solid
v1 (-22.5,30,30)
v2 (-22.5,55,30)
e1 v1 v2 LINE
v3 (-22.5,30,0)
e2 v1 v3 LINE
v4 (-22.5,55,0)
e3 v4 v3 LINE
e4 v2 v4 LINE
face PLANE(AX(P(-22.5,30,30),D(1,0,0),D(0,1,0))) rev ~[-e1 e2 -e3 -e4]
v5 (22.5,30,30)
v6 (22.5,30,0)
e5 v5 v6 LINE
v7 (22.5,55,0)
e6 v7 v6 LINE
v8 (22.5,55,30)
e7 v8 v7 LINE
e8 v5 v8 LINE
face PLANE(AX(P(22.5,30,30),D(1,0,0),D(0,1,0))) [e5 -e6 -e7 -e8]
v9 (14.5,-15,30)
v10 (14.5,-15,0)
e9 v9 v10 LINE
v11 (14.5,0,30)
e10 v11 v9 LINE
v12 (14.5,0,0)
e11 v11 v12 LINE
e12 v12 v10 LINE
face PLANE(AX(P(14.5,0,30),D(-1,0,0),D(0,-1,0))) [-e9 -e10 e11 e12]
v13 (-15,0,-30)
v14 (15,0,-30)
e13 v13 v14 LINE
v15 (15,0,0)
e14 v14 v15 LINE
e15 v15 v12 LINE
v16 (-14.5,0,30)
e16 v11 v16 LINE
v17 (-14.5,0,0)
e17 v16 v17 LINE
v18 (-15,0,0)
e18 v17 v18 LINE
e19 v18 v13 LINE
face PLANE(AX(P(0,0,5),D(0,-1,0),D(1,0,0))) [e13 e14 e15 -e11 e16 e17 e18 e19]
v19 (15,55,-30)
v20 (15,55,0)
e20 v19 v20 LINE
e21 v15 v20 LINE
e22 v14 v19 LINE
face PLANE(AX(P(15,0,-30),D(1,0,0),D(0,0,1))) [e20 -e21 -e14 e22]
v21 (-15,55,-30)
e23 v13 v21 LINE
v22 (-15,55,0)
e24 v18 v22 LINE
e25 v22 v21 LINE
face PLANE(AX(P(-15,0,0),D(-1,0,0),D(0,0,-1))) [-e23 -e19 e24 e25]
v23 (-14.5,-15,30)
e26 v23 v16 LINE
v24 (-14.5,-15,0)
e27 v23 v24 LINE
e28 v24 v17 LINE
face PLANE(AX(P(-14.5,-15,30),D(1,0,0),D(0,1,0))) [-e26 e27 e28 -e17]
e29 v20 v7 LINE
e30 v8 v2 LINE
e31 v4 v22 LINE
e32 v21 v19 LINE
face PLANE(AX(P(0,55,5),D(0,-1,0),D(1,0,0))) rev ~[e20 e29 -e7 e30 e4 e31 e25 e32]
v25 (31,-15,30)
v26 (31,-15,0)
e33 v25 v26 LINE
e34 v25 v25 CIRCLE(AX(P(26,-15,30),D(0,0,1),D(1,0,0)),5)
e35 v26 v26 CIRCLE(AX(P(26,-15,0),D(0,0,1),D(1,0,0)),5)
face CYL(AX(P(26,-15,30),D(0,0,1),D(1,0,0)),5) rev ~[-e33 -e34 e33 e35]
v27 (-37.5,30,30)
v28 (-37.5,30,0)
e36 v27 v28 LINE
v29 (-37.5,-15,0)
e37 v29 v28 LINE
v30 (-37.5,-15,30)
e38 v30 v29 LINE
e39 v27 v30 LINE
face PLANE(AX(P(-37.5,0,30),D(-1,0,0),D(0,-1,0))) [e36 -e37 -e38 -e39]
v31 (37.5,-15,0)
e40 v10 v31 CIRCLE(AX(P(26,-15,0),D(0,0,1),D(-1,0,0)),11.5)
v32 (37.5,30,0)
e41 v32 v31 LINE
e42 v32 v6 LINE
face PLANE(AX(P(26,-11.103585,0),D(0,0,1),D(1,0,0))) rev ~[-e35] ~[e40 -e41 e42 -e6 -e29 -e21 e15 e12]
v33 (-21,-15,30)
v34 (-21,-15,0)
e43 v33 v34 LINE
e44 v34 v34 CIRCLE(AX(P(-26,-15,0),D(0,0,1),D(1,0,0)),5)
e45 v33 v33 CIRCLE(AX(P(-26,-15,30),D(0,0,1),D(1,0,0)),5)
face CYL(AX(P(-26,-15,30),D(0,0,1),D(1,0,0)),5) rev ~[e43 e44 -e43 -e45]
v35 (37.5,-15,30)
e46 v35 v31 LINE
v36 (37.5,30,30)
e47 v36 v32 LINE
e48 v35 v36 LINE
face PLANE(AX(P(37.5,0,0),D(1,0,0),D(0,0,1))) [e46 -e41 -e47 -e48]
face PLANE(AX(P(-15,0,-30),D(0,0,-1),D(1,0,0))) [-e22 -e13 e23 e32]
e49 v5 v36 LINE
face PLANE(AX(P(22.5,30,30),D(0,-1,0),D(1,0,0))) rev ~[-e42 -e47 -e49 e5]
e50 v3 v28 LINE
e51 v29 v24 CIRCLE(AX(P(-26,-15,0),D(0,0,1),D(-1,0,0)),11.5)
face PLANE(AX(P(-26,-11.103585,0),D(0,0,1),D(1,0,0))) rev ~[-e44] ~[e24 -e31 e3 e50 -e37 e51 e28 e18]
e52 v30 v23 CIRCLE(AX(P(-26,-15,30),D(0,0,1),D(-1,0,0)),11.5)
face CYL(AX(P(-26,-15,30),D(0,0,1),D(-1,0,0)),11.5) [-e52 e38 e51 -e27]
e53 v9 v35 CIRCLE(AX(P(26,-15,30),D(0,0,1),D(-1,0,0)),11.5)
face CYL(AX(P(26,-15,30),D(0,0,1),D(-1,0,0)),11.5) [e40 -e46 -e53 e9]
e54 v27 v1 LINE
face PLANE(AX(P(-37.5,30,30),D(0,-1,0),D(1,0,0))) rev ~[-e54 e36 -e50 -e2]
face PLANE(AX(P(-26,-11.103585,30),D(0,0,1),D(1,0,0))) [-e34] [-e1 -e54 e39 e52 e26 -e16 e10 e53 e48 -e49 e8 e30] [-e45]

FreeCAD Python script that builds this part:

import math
import FreeCAD as App
import Part
import Sketcher
Q = App.Units.Quantity


def add_polygon(sketch, points):
    """Adds a closed chain of lines whose ends are joined by coincident constraints."""
    first, n = sketch.GeometryCount, len(points)
    for a, b in zip(points, points[1:] + points[:1]):
        sketch.addGeometry(Part.LineSegment(App.Vector(*a, 0), App.Vector(*b, 0)), False)
    for i in range(n):
        sketch.addConstraint(Sketcher.Constraint("Coincident", first + i, 2, first + (i + 1) % n, 1))

doc = App.newDocument("Part")
params = doc.addObject("Spreadsheet::Sheet", "Params")
for row, (alias, value) in enumerate([
    ("sketch1_width", "30 mm"),
    ("sketch1_width2", "75 mm"),
    ("pad1_length", "55 mm"),
    ("sketch2_width", "15 mm"),
    ("sketch2_height", "25 mm"),
    ("pocket1_length", "57.6 mm"),
    ("sketch3_diameter", "10 mm"),
    ("sketch3_radius", "11.5 mm"),
    ("sketch3_height", "15 mm"),
    ("pad2_length", "30 mm"),
], start=1):
    params.set(f"A{row}", alias)
    params.set(f"B{row}", "=" + value)
    params.setAlias(f"B{row}", alias)

body = doc.addObject("PartDesign::Body", "Body")

sketch1 = doc.addObject("Sketcher::SketchObject", "Sketch")
body.addObject(sketch1)
sketch1.AttachmentSupport = (doc.XZ_Plane, [""])
sketch1.MapMode = "FlatFace"
add_polygon(sketch1, [(-38, 30), (-38, 0), (-15, 0), (-15, -30), (15, -30), (15, 0), (38, 0), (38, 30)])
sketch1.addConstraint([
    Sketcher.Constraint("Vertical", 0),
    Sketcher.Constraint("Horizontal", 1),
    Sketcher.Constraint("Vertical", 2),
    Sketcher.Constraint("Horizontal", 3),
    Sketcher.Constraint("Vertical", 4),
    Sketcher.Constraint("Horizontal", 5),
    Sketcher.Constraint("Vertical", 6),
    Sketcher.Constraint("Horizontal", 7),
    Sketcher.Constraint("Symmetric", 1, 2, 4, 2, -1, 1),
    Sketcher.Constraint("Symmetric", 0, 2, 5, 2, -2),
    Sketcher.Constraint("Equal", 3, 0),
    Sketcher.Constraint("Equal", 0, 2),
    Sketcher.Constraint("DistanceX", 3, 1, 3, 2, Q("30 mm")),
    Sketcher.Constraint("DistanceX", 7, 2, 7, 1, Q("75 mm")),
])
sketch1.setExpression("Constraints[20]", "Params.sketch1_width")
sketch1.setExpression("Constraints[21]", "Params.sketch1_width2")
pad1 = doc.addObject("PartDesign::Pad", "Pad")
body.addObject(pad1)
pad1.Profile = sketch1
pad1.setExpression("Length", "Params.pad1_length")
pad1.Reversed = True

sketch2 = doc.addObject("Sketcher::SketchObject", "Sketch001")
body.addObject(sketch2)
sketch2.AttachmentSupport = (doc.XY_Plane, [""])
sketch2.MapMode = "FlatFace"
sketch2.AttachmentOffset = App.Placement(App.Vector(0, 0, 30), App.Rotation())
add_polygon(sketch2, [(-38, 55), (-38, 30), (-22, 30), (-22, 55)])
add_polygon(sketch2, [(22, 55), (22, 30), (38, 30), (38, 55)])
sketch2.addConstraint([
    Sketcher.Constraint("Vertical", 0),
    Sketcher.Constraint("Horizontal", 1),
    Sketcher.Constraint("Vertical", 2),
    Sketcher.Constraint("Horizontal", 3),
    Sketcher.Constraint("Vertical", 4),
    Sketcher.Constraint("Horizontal", 5),
    Sketcher.Constraint("Vertical", 6),
    Sketcher.Constraint("Horizontal", 7),
    Sketcher.Constraint("Symmetric", 1, 2, 4, 2, -2),
    Sketcher.Constraint("Symmetric", 3, 2, 6, 2, -2),
    Sketcher.Constraint("DistanceX", 1, 1, 1, 2, Q("15 mm")),
    Sketcher.Constraint("DistanceY", 0, 2, 0, 1, Q("25 mm")),
    Sketcher.Constraint("DistanceY", -1, 1, 0, 2, Q("30 mm")),
    Sketcher.Constraint("DistanceX", 1, 2, 4, 2, Q("45 mm")),
])
sketch2.setExpression("Constraints[18]", "Params.sketch2_width")
sketch2.setExpression("Constraints[19]", "Params.sketch2_height")
pocket1 = doc.addObject("PartDesign::Pocket", "Pocket")
body.addObject(pocket1)
pocket1.Profile = sketch2
pocket1.setExpression("Length", "Params.pocket1_length")

sketch3 = doc.addObject("Sketcher::SketchObject", "Sketch002")
body.addObject(sketch3)
sketch3.AttachmentSupport = (doc.XY_Plane, [""])
sketch3.MapMode = "FlatFace"
sketch3.AttachmentOffset = App.Placement(App.Vector(0, 0, 30), App.Rotation())
sketch3.addGeometry([
    Part.LineSegment(App.Vector(-14, 0, 0), App.Vector(-38, 0, 0)),
    Part.LineSegment(App.Vector(-38, 0, 0), App.Vector(-38, -15, 0)),
    Part.ArcOfCircle(Part.Circle(App.Vector(-26, -15, 0), App.Vector(0, 0, 1), 12), math.radians(180), math.radians(360)),
    Part.LineSegment(App.Vector(-14, -15, 0), App.Vector(-14, 0, 0)),
    Part.Circle(App.Vector(-26, -15, 0), App.Vector(0, 0, 1), 5),
    Part.LineSegment(App.Vector(38, 0, 0), App.Vector(14, 0, 0)),
    Part.LineSegment(App.Vector(14, 0, 0), App.Vector(14, -15, 0)),
    Part.ArcOfCircle(Part.Circle(App.Vector(26, -15, 0), App.Vector(0, 0, 1), 12), math.radians(180), math.radians(360)),
    Part.LineSegment(App.Vector(38, -15, 0), App.Vector(38, 0, 0)),
    Part.Circle(App.Vector(26, -15, 0), App.Vector(0, 0, 1), 5),
], False)
sketch3.addConstraint([
    Sketcher.Constraint("Coincident", 0, 2, 1, 1),
    Sketcher.Constraint("Tangent", 1, 2, 2, 1),
    Sketcher.Constraint("Tangent", 2, 2, 3, 1),
    Sketcher.Constraint("Coincident", 3, 2, 0, 1),
    Sketcher.Constraint("Coincident", 5, 2, 6, 1),
    Sketcher.Constraint("Tangent", 6, 2, 7, 1),
    Sketcher.Constraint("Tangent", 7, 2, 8, 1),
    Sketcher.Constraint("Coincident", 8, 2, 5, 1),
    Sketcher.Constraint("Horizontal", 0),
    Sketcher.Constraint("Vertical", 1),
    Sketcher.Constraint("Vertical", 3),
    Sketcher.Constraint("Horizontal", 5),
    Sketcher.Constraint("Vertical", 6),
    Sketcher.Constraint("Vertical", 8),
    Sketcher.Constraint("Coincident", 4, 3, 2, 3),
    Sketcher.Constraint("Coincident", 9, 3, 7, 3),
    Sketcher.Constraint("Equal", 2, 7),
    Sketcher.Constraint("Equal", 4, 9),
    Sketcher.Constraint("Symmetric", 3, 2, 5, 2, -1, 1),
    Sketcher.Constraint("PointOnObject", 0, 2, -1),
    Sketcher.Constraint("Horizontal", 4, 3, 7, 3),
    Sketcher.Constraint("Diameter", 4, Q("10 mm")),
    Sketcher.Constraint("Radius", 2, Q("11.5 mm")),
    Sketcher.Constraint("DistanceY", 1, 2, 1, 1, Q("15 mm")),
    Sketcher.Constraint("DistanceX", 2, 3, -1, 1, Q("26 mm")),
])
sketch3.setExpression("Constraints[21]", "Params.sketch3_diameter")
sketch3.setExpression("Constraints[22]", "Params.sketch3_radius")
sketch3.setExpression("Constraints[23]", "Params.sketch3_height")
pad2 = doc.addObject("PartDesign::Pad", "Pad001")
body.addObject(pad2)
pad2.Profile = sketch3
pad2.setExpression("Length", "Params.pad2_length")
pad2.Reversed = True

doc.recompute()
